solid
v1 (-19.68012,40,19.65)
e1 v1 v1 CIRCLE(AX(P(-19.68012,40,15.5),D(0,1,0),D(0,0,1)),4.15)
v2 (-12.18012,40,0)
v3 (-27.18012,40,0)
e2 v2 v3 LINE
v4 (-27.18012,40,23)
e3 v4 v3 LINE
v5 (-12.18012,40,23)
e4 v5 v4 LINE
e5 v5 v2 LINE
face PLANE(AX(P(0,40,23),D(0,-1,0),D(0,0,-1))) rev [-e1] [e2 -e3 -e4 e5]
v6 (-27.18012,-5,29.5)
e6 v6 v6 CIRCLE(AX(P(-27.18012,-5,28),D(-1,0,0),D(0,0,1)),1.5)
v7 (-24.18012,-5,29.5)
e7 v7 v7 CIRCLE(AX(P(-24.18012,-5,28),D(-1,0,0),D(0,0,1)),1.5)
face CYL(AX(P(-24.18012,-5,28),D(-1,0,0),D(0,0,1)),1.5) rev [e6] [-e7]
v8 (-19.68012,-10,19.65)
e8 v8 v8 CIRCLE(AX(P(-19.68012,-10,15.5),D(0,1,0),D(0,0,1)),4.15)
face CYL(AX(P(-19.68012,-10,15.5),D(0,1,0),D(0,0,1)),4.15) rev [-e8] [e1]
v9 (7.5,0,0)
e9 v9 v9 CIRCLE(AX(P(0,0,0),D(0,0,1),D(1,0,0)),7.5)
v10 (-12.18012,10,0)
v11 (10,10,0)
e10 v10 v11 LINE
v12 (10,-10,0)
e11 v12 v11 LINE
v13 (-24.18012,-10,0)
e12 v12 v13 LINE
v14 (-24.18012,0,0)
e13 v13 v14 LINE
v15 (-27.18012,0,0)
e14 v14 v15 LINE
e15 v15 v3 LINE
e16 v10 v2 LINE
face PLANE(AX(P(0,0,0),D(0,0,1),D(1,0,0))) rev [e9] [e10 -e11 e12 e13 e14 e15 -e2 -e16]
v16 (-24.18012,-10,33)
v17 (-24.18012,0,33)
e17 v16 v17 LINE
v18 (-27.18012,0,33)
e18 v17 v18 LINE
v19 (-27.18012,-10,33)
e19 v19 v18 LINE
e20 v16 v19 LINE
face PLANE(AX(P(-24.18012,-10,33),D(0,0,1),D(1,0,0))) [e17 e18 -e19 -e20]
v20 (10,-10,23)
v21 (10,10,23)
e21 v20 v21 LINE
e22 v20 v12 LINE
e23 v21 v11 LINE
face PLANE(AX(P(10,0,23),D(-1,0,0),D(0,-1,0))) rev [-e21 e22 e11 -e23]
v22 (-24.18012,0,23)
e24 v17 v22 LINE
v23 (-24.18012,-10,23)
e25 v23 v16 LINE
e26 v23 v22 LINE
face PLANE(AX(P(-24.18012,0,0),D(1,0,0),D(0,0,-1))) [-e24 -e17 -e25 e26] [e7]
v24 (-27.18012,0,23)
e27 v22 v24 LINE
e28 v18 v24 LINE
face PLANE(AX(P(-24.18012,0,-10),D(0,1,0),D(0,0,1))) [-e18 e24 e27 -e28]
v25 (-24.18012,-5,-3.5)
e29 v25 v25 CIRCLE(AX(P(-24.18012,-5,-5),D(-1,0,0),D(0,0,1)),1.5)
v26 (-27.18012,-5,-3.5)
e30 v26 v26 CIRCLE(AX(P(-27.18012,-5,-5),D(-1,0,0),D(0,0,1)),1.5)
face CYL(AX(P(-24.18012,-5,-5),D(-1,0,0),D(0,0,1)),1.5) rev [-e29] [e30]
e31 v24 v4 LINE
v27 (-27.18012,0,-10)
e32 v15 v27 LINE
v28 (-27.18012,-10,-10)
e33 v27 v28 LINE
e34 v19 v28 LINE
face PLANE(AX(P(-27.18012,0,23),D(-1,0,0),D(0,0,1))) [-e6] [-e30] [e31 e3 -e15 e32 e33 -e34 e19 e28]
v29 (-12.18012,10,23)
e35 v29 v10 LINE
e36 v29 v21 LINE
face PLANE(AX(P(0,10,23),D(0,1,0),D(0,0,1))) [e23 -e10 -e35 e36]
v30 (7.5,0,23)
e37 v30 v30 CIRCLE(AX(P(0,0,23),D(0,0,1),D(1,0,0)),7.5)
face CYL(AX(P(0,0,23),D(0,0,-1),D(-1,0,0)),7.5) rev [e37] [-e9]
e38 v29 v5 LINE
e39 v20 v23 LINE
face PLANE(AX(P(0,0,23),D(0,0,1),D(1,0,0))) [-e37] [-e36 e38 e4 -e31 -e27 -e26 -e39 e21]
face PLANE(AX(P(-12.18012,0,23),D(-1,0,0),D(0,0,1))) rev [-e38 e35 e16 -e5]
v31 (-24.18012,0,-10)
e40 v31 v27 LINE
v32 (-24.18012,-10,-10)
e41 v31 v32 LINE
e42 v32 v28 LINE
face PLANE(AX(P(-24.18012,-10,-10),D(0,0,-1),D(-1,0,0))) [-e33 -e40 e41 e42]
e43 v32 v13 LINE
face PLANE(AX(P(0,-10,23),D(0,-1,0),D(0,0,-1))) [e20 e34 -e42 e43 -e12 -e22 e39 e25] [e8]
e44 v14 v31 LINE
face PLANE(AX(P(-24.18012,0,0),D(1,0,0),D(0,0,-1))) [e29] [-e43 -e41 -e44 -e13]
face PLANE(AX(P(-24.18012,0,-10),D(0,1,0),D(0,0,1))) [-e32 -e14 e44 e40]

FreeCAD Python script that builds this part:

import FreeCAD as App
import Part
import Sketcher

V = App.Vector
Q = App.Units.Quantity


def add_polygon(sketch, points):
    """Adds a closed chain of lines whose ends are joined by coincident constraints."""
    first, n = sketch.GeometryCount, len(points)
    for a, b in zip(points, points[1:] + points[:1]):
        sketch.addGeometry(Part.LineSegment(App.Vector(*a, 0), App.Vector(*b, 0)), False)
    for i in range(n):
        sketch.addConstraint(Sketcher.Constraint("Coincident", first + i, 2, first + (i + 1) % n, 1))

doc = App.newDocument("Part")
body = doc.addObject("PartDesign::Body", "Body")

sketch1 = body.newObject("Sketcher::SketchObject", "Sketch")
sketch1.AttachmentSupport = (doc.getObject("XY_Plane"), [""])
sketch1.MapMode = "FlatFace"
add_polygon(sketch1, [(-12, 10), (-12, 40), (-27, 40), (-27, -10), (10, -10), (10, 10)])
sketch1.addGeometry(Part.Circle(V(0, 0, 0), V(0, 0, 1), 8), False)
sketch1.addConstraint(Sketcher.Constraint("Vertical", 0))
sketch1.addConstraint(Sketcher.Constraint("Horizontal", 1))
sketch1.addConstraint(Sketcher.Constraint("Vertical", 2))
sketch1.addConstraint(Sketcher.Constraint("Horizontal", 3))
sketch1.addConstraint(Sketcher.Constraint("Vertical", 4))
sketch1.addConstraint(Sketcher.Constraint("Horizontal", 5))
sketch1.addConstraint(Sketcher.Constraint("Coincident", 6, 3, -1, 1))
sketch1.addConstraint(Sketcher.Constraint("Diameter", 6, Q("15 mm")))
sketch1.addConstraint(Sketcher.Constraint("DistanceX", 1, 2, 1, 1, Q("15 mm")))
sketch1.addConstraint(Sketcher.Constraint("DistanceY", 0, 1, 0, 2, Q("30 mm")))
sketch1.addConstraint(Sketcher.Constraint("DistanceY", 2, 2, 2, 1, Q("50 mm")))
sketch1.addConstraint(Sketcher.Constraint("DistanceY", -1, 1, 0, 2, Q("40 mm")))
sketch1.addConstraint(Sketcher.Constraint("DistanceX", -1, 1, 3, 2, Q("10 mm")))
sketch1.addConstraint(Sketcher.Constraint("DistanceX", 3, 1, 3, 2, Q("37.18012 mm")))
pad1 = body.newObject("PartDesign::Pad", "Pad")
pad1.Profile = sketch1
pad1.Length = 23

sketch2 = body.newObject("Sketcher::SketchObject", "Sketch001")
sketch2.AttachmentSupport = (doc.getObject("XZ_Plane"), [""])
sketch2.MapMode = "FlatFace"
sketch2.AttachmentOffset = App.Placement(V(0, 0, -40), App.Rotation())
sketch2.addGeometry(Part.Circle(V(-19.7, 15.5, 0), V(0, 0, 1), 4.2), False)
sketch2.addConstraint(Sketcher.Constraint("Diameter", 0, Q("8.3 mm")))
sketch2.addConstraint(Sketcher.Constraint("DistanceY", -1, 1, 0, 3, Q("15.5 mm")))
sketch2.addConstraint(Sketcher.Constraint("DistanceX", 0, 3, -1, 1, Q("19.68012 mm")))
pocket1 = body.newObject("PartDesign::Pocket", "Pocket")
pocket1.Profile = sketch2
pocket1.Type = "ThroughAll"
pocket1.Reversed = True

sketch3 = body.newObject("Sketcher::SketchObject", "Sketch002")
sketch3.AttachmentSupport = (doc.getObject("YZ_Plane"), [""])
sketch3.MapMode = "FlatFace"
sketch3.AttachmentOffset = App.Placement(V(0, 0, -27.18012), App.Rotation())
add_polygon(sketch3, [(0, -10), (-10, -10), (-10, 33), (0, 33)])
sketch3.addGeometry(Part.Circle(V(-5, -5, 0), V(0, 0, 1), 1.5), False)
sketch3.addGeometry(Part.Circle(V(-5, 28, 0), V(0, 0, 1), 1.5), False)
sketch3.addConstraint(Sketcher.Constraint("Horizontal", 0))
sketch3.addConstraint(Sketcher.Constraint("Vertical", 1))
sketch3.addConstraint(Sketcher.Constraint("Horizontal", 2))
sketch3.addConstraint(Sketcher.Constraint("Vertical", 3))
sketch3.addConstraint(Sketcher.Constraint("Equal", 4, 5))
sketch3.addConstraint(Sketcher.Constraint("PointOnObject", 2, 2, -2))
sketch3.addConstraint(Sketcher.Constraint("Vertical", 4, 3, 5, 3))
sketch3.addConstraint(Sketcher.Constraint("Diameter", 4, Q("3 mm")))
sketch3.addConstraint(Sketcher.Constraint("DistanceX", 0, 2, 0, 1, Q("10 mm")))
sketch3.addConstraint(Sketcher.Constraint("DistanceY", 1, 1, 1, 2, Q("43 mm")))
sketch3.addConstraint(Sketcher.Constraint("DistanceX", 4, 3, -1, 1, Q("5 mm")))
sketch3.addConstraint(Sketcher.Constraint("DistanceY", 4, 3, -1, 1, Q("5 mm")))
sketch3.addConstraint(Sketcher.Constraint("DistanceY", -1, 1, 5, 3, Q("28 mm")))
sketch3.addConstraint(Sketcher.Constraint("DistanceY", 0, 2, -1, 1, Q("10 mm")))
pad2 = body.newObject("PartDesign::Pad", "Pad001")
pad2.Profile = sketch3
pad2.Length = 3

doc.recompute()
